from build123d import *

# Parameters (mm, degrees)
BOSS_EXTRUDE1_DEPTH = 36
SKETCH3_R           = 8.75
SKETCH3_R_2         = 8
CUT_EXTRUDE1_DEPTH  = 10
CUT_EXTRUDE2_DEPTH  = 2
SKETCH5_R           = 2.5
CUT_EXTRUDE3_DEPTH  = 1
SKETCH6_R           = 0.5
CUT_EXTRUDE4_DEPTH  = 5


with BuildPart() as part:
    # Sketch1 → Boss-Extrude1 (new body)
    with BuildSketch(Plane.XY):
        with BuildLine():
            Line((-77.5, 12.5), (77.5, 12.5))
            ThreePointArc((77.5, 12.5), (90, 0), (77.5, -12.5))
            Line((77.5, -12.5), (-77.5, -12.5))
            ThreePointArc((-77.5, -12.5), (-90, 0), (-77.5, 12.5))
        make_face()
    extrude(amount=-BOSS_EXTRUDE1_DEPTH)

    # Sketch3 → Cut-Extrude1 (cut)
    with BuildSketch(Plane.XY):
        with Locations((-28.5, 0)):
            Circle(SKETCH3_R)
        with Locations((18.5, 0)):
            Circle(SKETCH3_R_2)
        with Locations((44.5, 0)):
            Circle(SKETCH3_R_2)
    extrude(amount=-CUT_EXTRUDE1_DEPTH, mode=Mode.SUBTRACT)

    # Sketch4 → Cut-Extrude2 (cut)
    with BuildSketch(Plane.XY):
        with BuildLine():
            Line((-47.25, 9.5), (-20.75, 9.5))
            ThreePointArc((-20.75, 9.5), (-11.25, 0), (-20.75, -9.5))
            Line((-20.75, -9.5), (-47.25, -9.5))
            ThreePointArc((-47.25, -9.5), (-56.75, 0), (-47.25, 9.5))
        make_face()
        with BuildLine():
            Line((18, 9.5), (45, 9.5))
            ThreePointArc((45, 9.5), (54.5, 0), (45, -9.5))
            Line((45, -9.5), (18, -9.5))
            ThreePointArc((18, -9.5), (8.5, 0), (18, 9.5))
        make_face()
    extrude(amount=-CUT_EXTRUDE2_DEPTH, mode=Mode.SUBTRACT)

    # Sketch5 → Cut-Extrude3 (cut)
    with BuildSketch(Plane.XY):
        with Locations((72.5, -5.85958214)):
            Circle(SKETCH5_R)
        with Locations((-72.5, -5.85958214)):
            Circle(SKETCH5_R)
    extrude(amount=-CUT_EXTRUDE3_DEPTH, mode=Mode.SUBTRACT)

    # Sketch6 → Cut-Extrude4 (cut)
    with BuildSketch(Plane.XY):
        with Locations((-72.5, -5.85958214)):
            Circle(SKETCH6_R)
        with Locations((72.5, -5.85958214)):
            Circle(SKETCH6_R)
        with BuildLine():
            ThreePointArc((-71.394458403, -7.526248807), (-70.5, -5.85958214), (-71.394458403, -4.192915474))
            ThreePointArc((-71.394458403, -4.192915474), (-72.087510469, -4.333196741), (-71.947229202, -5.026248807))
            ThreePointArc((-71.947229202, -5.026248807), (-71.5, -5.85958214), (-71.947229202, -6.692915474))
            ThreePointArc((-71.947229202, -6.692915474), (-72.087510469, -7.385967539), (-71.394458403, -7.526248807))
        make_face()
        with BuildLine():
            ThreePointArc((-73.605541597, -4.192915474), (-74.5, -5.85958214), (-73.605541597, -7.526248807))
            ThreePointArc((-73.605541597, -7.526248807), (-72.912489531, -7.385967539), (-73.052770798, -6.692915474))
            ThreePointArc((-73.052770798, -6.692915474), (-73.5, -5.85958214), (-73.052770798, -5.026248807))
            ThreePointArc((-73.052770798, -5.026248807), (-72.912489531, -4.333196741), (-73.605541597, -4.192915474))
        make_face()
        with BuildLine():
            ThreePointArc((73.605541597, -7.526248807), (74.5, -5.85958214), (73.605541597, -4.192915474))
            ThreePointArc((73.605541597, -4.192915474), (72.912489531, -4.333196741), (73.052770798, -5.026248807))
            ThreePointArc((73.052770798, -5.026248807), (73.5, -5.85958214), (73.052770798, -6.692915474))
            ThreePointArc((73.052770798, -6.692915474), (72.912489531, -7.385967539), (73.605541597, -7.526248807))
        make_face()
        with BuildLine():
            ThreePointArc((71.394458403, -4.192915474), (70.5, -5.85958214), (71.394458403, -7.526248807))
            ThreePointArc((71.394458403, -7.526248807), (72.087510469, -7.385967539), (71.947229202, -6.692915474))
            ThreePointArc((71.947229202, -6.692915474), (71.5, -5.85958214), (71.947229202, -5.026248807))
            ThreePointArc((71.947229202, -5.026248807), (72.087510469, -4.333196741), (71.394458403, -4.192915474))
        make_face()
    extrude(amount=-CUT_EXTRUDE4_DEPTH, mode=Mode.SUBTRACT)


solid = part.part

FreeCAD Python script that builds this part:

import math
import FreeCAD as App
import Part
import Sketcher

V = App.Vector

doc = App.newDocument("Part")
params = doc.addObject("Spreadsheet::Sheet", "Params")
for row, (alias, value) in enumerate([
    ("sketch1_radius", "12.5 mm"),
    ("sketch1_width", "155 mm"),
    ("pad1_length", "36 mm"),
    ("sketch2_diameter", "16 mm"),
    ("sketch2_diameter2", "17.5 mm"),
    ("pocket1_length", "10 mm"),
    ("sketch3_radius", "9.5 mm"),
    ("sketch3_width", "27 mm"),
    ("sketch3_width2", "26.5 mm"),
    ("pocket2_length", "2 mm"),
    ("sketch4_diameter", "5 mm"),
    ("pocket3_length", "1 mm"),
    ("sketch5_diameter", "1 mm"),
    ("sketch5_radius", "2 mm"),
    ("pocket4_length", "5 mm"),
], start=1):
    params.set(f"A{row}", alias)
    params.set(f"B{row}", "=" + value)
    params.setAlias(f"B{row}", alias)

body = doc.addObject("PartDesign::Body", "Body")

sketch1 = body.newObject("Sketcher::SketchObject", "Sketch")
sketch1.AttachmentSupport = (doc.getObject("XY_Plane"), [""])
sketch1.MapMode = "FlatFace"
sketch1.addGeometry(Part.LineSegment(V(77.5, 12.5, 0), V(-77.5, 12.5, 0)), False)
sketch1.addGeometry(Part.ArcOfCircle(Part.Circle(V(-77.5, 0, 0), V(0, 0, 1), 12.5), math.radians(90), math.radians(270)), False)
sketch1.addGeometry(Part.LineSegment(V(-77.5, -12.5, 0), V(77.5, -12.5, 0)), False)
sketch1.addGeometry(Part.ArcOfCircle(Part.Circle(V(77.5, 0, 0), V(0, 0, 1), 12.5), math.radians(-90), math.radians(90)), False)
sketch1.addConstraint(Sketcher.Constraint("Tangent", 0, 2, 1, 1))
sketch1.addConstraint(Sketcher.Constraint("Tangent", 1, 2, 2, 1))
sketch1.addConstraint(Sketcher.Constraint("Tangent", 2, 2, 3, 1))
sketch1.addConstraint(Sketcher.Constraint("Tangent", 3, 2, 0, 1))
sketch1.addConstraint(Sketcher.Constraint("Horizontal", 0))
sketch1.addConstraint(Sketcher.Constraint("Horizontal", 2))
sketch1.addConstraint(Sketcher.Constraint("Symmetric", 1, 3, 3, 3, -1, 1))
sketch1.addConstraint(Sketcher.Constraint("Radius", 1, 12.5))
sketch1.addConstraint(Sketcher.Constraint("DistanceX", 0, 2, 0, 1, 155.0))
sketch1.setExpression("Constraints[7]", "Params.sketch1_radius")
sketch1.setExpression("Constraints[8]", "Params.sketch1_width")
pad1 = body.newObject("PartDesign::Pad", "Pad")
pad1.Profile = sketch1
pad1.setExpression("Length", "Params.pad1_length")
pad1.Reversed = True

sketch2 = body.newObject("Sketcher::SketchObject", "Sketch001")
sketch2.AttachmentSupport = (doc.getObject("XY_Plane"), [""])
sketch2.MapMode = "FlatFace"
sketch2.addGeometry(Part.Circle(V(-28.5, 0, 0), V(0, 0, 1), 8.75), False)
sketch2.addGeometry(Part.Circle(V(18.5, 0, 0), V(0, 0, 1), 8), False)
sketch2.addGeometry(Part.Circle(V(44.5, 0, 0), V(0, 0, 1), 8), False)
sketch2.addConstraint(Sketcher.Constraint("Equal", 1, 2))
sketch2.addConstraint(Sketcher.Constraint("PointOnObject", 0, 3, -1))
sketch2.addConstraint(Sketcher.Constraint("PointOnObject", 1, 3, -1))
sketch2.addConstraint(Sketcher.Constraint("PointOnObject", 2, 3, -1))
sketch2.addConstraint(Sketcher.Constraint("Diameter", 1, 16.0))
sketch2.addConstraint(Sketcher.Constraint("Diameter", 0, 17.5))
sketch2.addConstraint(Sketcher.Constraint("DistanceX", 0, 3, 1, 3, 47.0))
sketch2.addConstraint(Sketcher.Constraint("DistanceX", 1, 3, 2, 3, 26.0))
sketch2.addConstraint(Sketcher.Constraint("DistanceX", 0, 3, -1, 1, 28.5))
sketch2.setExpression("Constraints[4]", "Params.sketch2_diameter")
sketch2.setExpression("Constraints[5]", "Params.sketch2_diameter2")
pocket1 = body.newObject("PartDesign::Pocket", "Pocket")
pocket1.Profile = sketch2
pocket1.setExpression("Length", "Params.pocket1_length")

sketch3 = body.newObject("Sketcher::SketchObject", "Sketch002")
sketch3.AttachmentSupport = (doc.getObject("XY_Plane"), [""])
sketch3.MapMode = "FlatFace"
sketch3.addGeometry(Part.LineSegment(V(-20.75, 9.5, 0), V(-47.25, 9.5, 0)), False)
sketch3.addGeometry(Part.ArcOfCircle(Part.Circle(V(-47.25, 0, 0), V(0, 0, 1), 9.5), math.radians(90), math.radians(270)), False)
sketch3.addGeometry(Part.LineSegment(V(-47.25, -9.5, 0), V(-20.75, -9.5, 0)), False)
sketch3.addGeometry(Part.ArcOfCircle(Part.Circle(V(-20.75, 0, 0), V(0, 0, 1), 9.5), math.radians(-90), math.radians(90)), False)
sketch3.addGeometry(Part.LineSegment(V(45, 9.5, 0), V(18, 9.5, 0)), False)
sketch3.addGeometry(Part.ArcOfCircle(Part.Circle(V(18, 0, 0), V(0, 0, 1), 9.5), math.radians(90), math.radians(270)), False)
sketch3.addGeometry(Part.LineSegment(V(18, -9.5, 0), V(45, -9.5, 0)), False)
sketch3.addGeometry(Part.ArcOfCircle(Part.Circle(V(45, 0, 0), V(0, 0, 1), 9.5), math.radians(-90), math.radians(90)), False)
sketch3.addConstraint(Sketcher.Constraint("Tangent", 0, 2, 1, 1))
sketch3.addConstraint(Sketcher.Constraint("Tangent", 1, 2, 2, 1))
sketch3.addConstraint(Sketcher.Constraint("Tangent", 2, 2, 3, 1))
sketch3.addConstraint(Sketcher.Constraint("Tangent", 3, 2, 0, 1))
sketch3.addConstraint(Sketcher.Constraint("Tangent", 4, 2, 5, 1))
sketch3.addConstraint(Sketcher.Constraint("Tangent", 5, 2, 6, 1))
sketch3.addConstraint(Sketcher.Constraint("Tangent", 6, 2, 7, 1))
sketch3.addConstraint(Sketcher.Constraint("Tangent", 7, 2, 4, 1))
sketch3.addConstraint(Sketcher.Constraint("Horizontal", 0))
sketch3.addConstraint(Sketcher.Constraint("Horizontal", 2))
sketch3.addConstraint(Sketcher.Constraint("Horizontal", 4))
sketch3.addConstraint(Sketcher.Constraint("Horizontal", 6))
sketch3.addConstraint(Sketcher.Constraint("Equal", 3, 5))
sketch3.addConstraint(Sketcher.Constraint("PointOnObject", 1, 3, -1))
sketch3.addConstraint(Sketcher.Constraint("PointOnObject", 5, 3, -1))
sketch3.addConstraint(Sketcher.Constraint("Radius", 1, 9.5))
sketch3.addConstraint(Sketcher.Constraint("DistanceX", 4, 2, 4, 1, 27.0))
sketch3.addConstraint(Sketcher.Constraint("DistanceX", 0, 2, 0, 1, 26.5))
sketch3.addConstraint(Sketcher.Constraint("DistanceX", -1, 1, 5, 3, 18.0))
sketch3.addConstraint(Sketcher.Constraint("DistanceX", 1, 3, -1, 1, 47.25))
sketch3.setExpression("Constraints[15]", "Params.sketch3_radius")
sketch3.setExpression("Constraints[16]", "Params.sketch3_width")
sketch3.setExpression("Constraints[17]", "Params.sketch3_width2")
pocket2 = body.newObject("PartDesign::Pocket", "Pocket001")
pocket2.Profile = sketch3
pocket2.setExpression("Length", "Params.pocket2_length")

sketch4 = body.newObject("Sketcher::SketchObject", "Sketch003")
sketch4.AttachmentSupport = (doc.getObject("XY_Plane"), [""])
sketch4.MapMode = "FlatFace"
sketch4.addGeometry(Part.Circle(V(72.5, -5.859582, 0), V(0, 0, 1), 2.5), False)
sketch4.addGeometry(Part.Circle(V(-72.5, -5.859582, 0), V(0, 0, 1), 2.5), False)
sketch4.addConstraint(Sketcher.Constraint("Equal", 0, 1))
sketch4.addConstraint(Sketcher.Constraint("Symmetric", 0, 3, 1, 3, -2))
sketch4.addConstraint(Sketcher.Constraint("Diameter", 0, 5.0))
sketch4.addConstraint(Sketcher.Constraint("DistanceX", 1, 3, 0, 3, 145.0))
sketch4.addConstraint(Sketcher.Constraint("DistanceY", 0, 3, -1, 1, 5.859582))
sketch4.setExpression("Constraints[2]", "Params.sketch4_diameter")
pocket3 = body.newObject("PartDesign::Pocket", "Pocket002")
pocket3.Profile = sketch4
pocket3.setExpression("Length", "Params.pocket3_length")

sketch5 = body.newObject("Sketcher::SketchObject", "Sketch004")
sketch5.AttachmentSupport = (doc.getObject("XY_Plane"), [""])
sketch5.MapMode = "FlatFace"
sketch5.addGeometry(Part.Circle(V(-72.5, -5.859582, 0), V(0, 0, 1), 0.5), False)
sketch5.addGeometry(Part.Circle(V(72.5, -5.859582, 0), V(0, 0, 1), 0.5), False)
sketch5.addGeometry(Part.ArcOfCircle(Part.Circle(V(-72.5, -5.859582, 0), V(0, 0, 1), 2), math.radians(-56.44269), math.radians(56.44269)), False)
sketch5.addGeometry(Part.ArcOfCircle(Part.Circle(V(-71.670844, -4.609582, 0), V(0, 0, 1), 0.5), math.radians(56.44269), math.radians(236.44269)), False)
sketch5.addGeometry(Part.ArcOfCircle(Part.Circle(V(-72.5, -5.859582, 0), V(0, 0, 1), 1), math.radians(-56.44269), math.radians(56.44269)), False)
sketch5.addGeometry(Part.ArcOfCircle(Part.Circle(V(-71.670844, -7.109582, 0), V(0, 0, 1), 0.5), math.radians(123.55731), math.radians(303.55731)), False)
sketch5.addGeometry(Part.ArcOfCircle(Part.Circle(V(-72.5, -5.859582, 0), V(0, 0, 1), 2), math.radians(123.55731), math.radians(236.44269)), False)
sketch5.addGeometry(Part.ArcOfCircle(Part.Circle(V(-73.329156, -7.109582, 0), V(0, 0, 1), 0.5), math.radians(-123.55731), math.radians(56.44269)), False)
sketch5.addGeometry(Part.ArcOfCircle(Part.Circle(V(-72.5, -5.859582, 0), V(0, 0, 1), 1), math.radians(123.55731), math.radians(236.44269)), False)
sketch5.addGeometry(Part.ArcOfCircle(Part.Circle(V(-73.329156, -4.609582, 0), V(0, 0, 1), 0.5), math.radians(-56.44269), math.radians(123.55731)), False)
sketch5.addGeometry(Part.ArcOfCircle(Part.Circle(V(72.5, -5.859582, 0), V(0, 0, 1), 2), math.radians(-56.44269), math.radians(56.44269)), False)
sketch5.addGeometry(Part.ArcOfCircle(Part.Circle(V(73.329156, -4.609582, 0), V(0, 0, 1), 0.5), math.radians(56.44269), math.radians(236.44269)), False)
sketch5.addGeometry(Part.ArcOfCircle(Part.Circle(V(72.5, -5.859582, 0), V(0, 0, 1), 1), math.radians(-56.44269), math.radians(56.44269)), False)
sketch5.addGeometry(Part.ArcOfCircle(Part.Circle(V(73.329156, -7.109582, 0), V(0, 0, 1), 0.5), math.radians(123.55731), math.radians(303.55731)), False)
sketch5.addGeometry(Part.ArcOfCircle(Part.Circle(V(72.5, -5.859582, 0), V(0, 0, 1), 2), math.radians(123.55731), math.radians(236.44269)), False)
sketch5.addGeometry(Part.ArcOfCircle(Part.Circle(V(71.670844, -7.109582, 0), V(0, 0, 1), 0.5), math.radians(-123.55731), math.radians(56.44269)), False)
sketch5.addGeometry(Part.ArcOfCircle(Part.Circle(V(72.5, -5.859582, 0), V(0, 0, 1), 1), math.radians(123.55731), math.radians(236.44269)), False)
sketch5.addGeometry(Part.ArcOfCircle(Part.Circle(V(71.670844, -4.609582, 0), V(0, 0, 1), 0.5), math.radians(-56.44269), math.radians(123.55731)), False)
sketch5.addConstraint(Sketcher.Constraint("Tangent", 2, 2, 3, 1))
sketch5.addConstraint(Sketcher.Constraint("Tangent", 3, 2, 4, 2))
sketch5.addConstraint(Sketcher.Constraint("Tangent", 4, 1, 5, 1))
sketch5.addConstraint(Sketcher.Constraint("Tangent", 5, 2, 2, 1))
sketch5.addConstraint(Sketcher.Constraint("Tangent", 6, 2, 7, 1))
sketch5.addConstraint(Sketcher.Constraint("Tangent", 7, 2, 8, 2))
sketch5.addConstraint(Sketcher.Constraint("Tangent", 8, 1, 9, 1))
sketch5.addConstraint(Sketcher.Constraint("Tangent", 9, 2, 6, 1))
sketch5.addConstraint(Sketcher.Constraint("Tangent", 10, 2, 11, 1))
sketch5.addConstraint(Sketcher.Constraint("Tangent", 11, 2, 12, 2))
sketch5.addConstraint(Sketcher.Constraint("Tangent", 12, 1, 13, 1))
sketch5.addConstraint(Sketcher.Constraint("Tangent", 13, 2, 10, 1))
sketch5.addConstraint(Sketcher.Constraint("Tangent", 14, 2, 15, 1))
sketch5.addConstraint(Sketcher.Constraint("Tangent", 15, 2, 16, 2))
sketch5.addConstraint(Sketcher.Constraint("Tangent", 16, 1, 17, 1))
sketch5.addConstraint(Sketcher.Constraint("Tangent", 17, 2, 14, 1))
sketch5.addConstraint(Sketcher.Constraint("Coincident", 2, 3, 0, 3))
sketch5.addConstraint(Sketcher.Constraint("Coincident", 4, 3, 0, 3))
sketch5.addConstraint(Sketcher.Constraint("Coincident", 6, 3, 0, 3))
sketch5.addConstraint(Sketcher.Constraint("Coincident", 8, 3, 0, 3))
sketch5.addConstraint(Sketcher.Constraint("Coincident", 10, 3, 1, 3))
sketch5.addConstraint(Sketcher.Constraint("Coincident", 12, 3, 1, 3))
sketch5.addConstraint(Sketcher.Constraint("Coincident", 14, 3, 1, 3))
sketch5.addConstraint(Sketcher.Constraint("Coincident", 16, 3, 1, 3))
sketch5.addConstraint(Sketcher.Constraint("Equal", 0, 1))
sketch5.addConstraint(Sketcher.Constraint("Equal", 1, 3))
sketch5.addConstraint(Sketcher.Constraint("Equal", 2, 6))
sketch5.addConstraint(Sketcher.Constraint("Equal", 5, 7))
sketch5.addConstraint(Sketcher.Constraint("Equal", 6, 10))
sketch5.addConstraint(Sketcher.Constraint("Equal", 9, 11))
sketch5.addConstraint(Sketcher.Constraint("Equal", 10, 14))
sketch5.addConstraint(Sketcher.Constraint("Equal", 13, 15))
sketch5.addConstraint(Sketcher.Constraint("Symmetric", 0, 3, 1, 3, -2))
sketch5.addConstraint(Sketcher.Constraint("Horizontal", 5, 3, 7, 3))
sketch5.addConstraint(Sketcher.Constraint("Horizontal", 3, 3, 9, 3))
sketch5.addConstraint(Sketcher.Constraint("Horizontal", 9, 3, 11, 3))
sketch5.addConstraint(Sketcher.Constraint("Horizontal", 7, 3, 13, 3))
sketch5.addConstraint(Sketcher.Constraint("Horizontal", 13, 3, 15, 3))
sketch5.addConstraint(Sketcher.Constraint("Horizontal", 11, 3, 17, 3))
sketch5.addConstraint(Sketcher.Constraint("Vertical", 3, 3, 5, 3))
sketch5.addConstraint(Sketcher.Constraint("Diameter", 0, 1.0))
sketch5.addConstraint(Sketcher.Constraint("Radius", 2, 2.0))
sketch5.addConstraint(Sketcher.Constraint("DistanceX", 0, 3, 1, 3, 145.0))
sketch5.addConstraint(Sketcher.Constraint("DistanceY", 5, 3, 3, 3, 2.5))
sketch5.addConstraint(Sketcher.Constraint("DistanceY", 3, 2, -1, 1, 5.026249))
sketch5.setExpression("Constraints[40]", "Params.sketch5_diameter")
sketch5.setExpression("Constraints[41]", "Params.sketch5_radius")
pocket4 = body.newObject("PartDesign::Pocket", "Pocket003")
pocket4.Profile = sketch5
pocket4.setExpression("Length", "Params.pocket4_length")

doc.recompute()
